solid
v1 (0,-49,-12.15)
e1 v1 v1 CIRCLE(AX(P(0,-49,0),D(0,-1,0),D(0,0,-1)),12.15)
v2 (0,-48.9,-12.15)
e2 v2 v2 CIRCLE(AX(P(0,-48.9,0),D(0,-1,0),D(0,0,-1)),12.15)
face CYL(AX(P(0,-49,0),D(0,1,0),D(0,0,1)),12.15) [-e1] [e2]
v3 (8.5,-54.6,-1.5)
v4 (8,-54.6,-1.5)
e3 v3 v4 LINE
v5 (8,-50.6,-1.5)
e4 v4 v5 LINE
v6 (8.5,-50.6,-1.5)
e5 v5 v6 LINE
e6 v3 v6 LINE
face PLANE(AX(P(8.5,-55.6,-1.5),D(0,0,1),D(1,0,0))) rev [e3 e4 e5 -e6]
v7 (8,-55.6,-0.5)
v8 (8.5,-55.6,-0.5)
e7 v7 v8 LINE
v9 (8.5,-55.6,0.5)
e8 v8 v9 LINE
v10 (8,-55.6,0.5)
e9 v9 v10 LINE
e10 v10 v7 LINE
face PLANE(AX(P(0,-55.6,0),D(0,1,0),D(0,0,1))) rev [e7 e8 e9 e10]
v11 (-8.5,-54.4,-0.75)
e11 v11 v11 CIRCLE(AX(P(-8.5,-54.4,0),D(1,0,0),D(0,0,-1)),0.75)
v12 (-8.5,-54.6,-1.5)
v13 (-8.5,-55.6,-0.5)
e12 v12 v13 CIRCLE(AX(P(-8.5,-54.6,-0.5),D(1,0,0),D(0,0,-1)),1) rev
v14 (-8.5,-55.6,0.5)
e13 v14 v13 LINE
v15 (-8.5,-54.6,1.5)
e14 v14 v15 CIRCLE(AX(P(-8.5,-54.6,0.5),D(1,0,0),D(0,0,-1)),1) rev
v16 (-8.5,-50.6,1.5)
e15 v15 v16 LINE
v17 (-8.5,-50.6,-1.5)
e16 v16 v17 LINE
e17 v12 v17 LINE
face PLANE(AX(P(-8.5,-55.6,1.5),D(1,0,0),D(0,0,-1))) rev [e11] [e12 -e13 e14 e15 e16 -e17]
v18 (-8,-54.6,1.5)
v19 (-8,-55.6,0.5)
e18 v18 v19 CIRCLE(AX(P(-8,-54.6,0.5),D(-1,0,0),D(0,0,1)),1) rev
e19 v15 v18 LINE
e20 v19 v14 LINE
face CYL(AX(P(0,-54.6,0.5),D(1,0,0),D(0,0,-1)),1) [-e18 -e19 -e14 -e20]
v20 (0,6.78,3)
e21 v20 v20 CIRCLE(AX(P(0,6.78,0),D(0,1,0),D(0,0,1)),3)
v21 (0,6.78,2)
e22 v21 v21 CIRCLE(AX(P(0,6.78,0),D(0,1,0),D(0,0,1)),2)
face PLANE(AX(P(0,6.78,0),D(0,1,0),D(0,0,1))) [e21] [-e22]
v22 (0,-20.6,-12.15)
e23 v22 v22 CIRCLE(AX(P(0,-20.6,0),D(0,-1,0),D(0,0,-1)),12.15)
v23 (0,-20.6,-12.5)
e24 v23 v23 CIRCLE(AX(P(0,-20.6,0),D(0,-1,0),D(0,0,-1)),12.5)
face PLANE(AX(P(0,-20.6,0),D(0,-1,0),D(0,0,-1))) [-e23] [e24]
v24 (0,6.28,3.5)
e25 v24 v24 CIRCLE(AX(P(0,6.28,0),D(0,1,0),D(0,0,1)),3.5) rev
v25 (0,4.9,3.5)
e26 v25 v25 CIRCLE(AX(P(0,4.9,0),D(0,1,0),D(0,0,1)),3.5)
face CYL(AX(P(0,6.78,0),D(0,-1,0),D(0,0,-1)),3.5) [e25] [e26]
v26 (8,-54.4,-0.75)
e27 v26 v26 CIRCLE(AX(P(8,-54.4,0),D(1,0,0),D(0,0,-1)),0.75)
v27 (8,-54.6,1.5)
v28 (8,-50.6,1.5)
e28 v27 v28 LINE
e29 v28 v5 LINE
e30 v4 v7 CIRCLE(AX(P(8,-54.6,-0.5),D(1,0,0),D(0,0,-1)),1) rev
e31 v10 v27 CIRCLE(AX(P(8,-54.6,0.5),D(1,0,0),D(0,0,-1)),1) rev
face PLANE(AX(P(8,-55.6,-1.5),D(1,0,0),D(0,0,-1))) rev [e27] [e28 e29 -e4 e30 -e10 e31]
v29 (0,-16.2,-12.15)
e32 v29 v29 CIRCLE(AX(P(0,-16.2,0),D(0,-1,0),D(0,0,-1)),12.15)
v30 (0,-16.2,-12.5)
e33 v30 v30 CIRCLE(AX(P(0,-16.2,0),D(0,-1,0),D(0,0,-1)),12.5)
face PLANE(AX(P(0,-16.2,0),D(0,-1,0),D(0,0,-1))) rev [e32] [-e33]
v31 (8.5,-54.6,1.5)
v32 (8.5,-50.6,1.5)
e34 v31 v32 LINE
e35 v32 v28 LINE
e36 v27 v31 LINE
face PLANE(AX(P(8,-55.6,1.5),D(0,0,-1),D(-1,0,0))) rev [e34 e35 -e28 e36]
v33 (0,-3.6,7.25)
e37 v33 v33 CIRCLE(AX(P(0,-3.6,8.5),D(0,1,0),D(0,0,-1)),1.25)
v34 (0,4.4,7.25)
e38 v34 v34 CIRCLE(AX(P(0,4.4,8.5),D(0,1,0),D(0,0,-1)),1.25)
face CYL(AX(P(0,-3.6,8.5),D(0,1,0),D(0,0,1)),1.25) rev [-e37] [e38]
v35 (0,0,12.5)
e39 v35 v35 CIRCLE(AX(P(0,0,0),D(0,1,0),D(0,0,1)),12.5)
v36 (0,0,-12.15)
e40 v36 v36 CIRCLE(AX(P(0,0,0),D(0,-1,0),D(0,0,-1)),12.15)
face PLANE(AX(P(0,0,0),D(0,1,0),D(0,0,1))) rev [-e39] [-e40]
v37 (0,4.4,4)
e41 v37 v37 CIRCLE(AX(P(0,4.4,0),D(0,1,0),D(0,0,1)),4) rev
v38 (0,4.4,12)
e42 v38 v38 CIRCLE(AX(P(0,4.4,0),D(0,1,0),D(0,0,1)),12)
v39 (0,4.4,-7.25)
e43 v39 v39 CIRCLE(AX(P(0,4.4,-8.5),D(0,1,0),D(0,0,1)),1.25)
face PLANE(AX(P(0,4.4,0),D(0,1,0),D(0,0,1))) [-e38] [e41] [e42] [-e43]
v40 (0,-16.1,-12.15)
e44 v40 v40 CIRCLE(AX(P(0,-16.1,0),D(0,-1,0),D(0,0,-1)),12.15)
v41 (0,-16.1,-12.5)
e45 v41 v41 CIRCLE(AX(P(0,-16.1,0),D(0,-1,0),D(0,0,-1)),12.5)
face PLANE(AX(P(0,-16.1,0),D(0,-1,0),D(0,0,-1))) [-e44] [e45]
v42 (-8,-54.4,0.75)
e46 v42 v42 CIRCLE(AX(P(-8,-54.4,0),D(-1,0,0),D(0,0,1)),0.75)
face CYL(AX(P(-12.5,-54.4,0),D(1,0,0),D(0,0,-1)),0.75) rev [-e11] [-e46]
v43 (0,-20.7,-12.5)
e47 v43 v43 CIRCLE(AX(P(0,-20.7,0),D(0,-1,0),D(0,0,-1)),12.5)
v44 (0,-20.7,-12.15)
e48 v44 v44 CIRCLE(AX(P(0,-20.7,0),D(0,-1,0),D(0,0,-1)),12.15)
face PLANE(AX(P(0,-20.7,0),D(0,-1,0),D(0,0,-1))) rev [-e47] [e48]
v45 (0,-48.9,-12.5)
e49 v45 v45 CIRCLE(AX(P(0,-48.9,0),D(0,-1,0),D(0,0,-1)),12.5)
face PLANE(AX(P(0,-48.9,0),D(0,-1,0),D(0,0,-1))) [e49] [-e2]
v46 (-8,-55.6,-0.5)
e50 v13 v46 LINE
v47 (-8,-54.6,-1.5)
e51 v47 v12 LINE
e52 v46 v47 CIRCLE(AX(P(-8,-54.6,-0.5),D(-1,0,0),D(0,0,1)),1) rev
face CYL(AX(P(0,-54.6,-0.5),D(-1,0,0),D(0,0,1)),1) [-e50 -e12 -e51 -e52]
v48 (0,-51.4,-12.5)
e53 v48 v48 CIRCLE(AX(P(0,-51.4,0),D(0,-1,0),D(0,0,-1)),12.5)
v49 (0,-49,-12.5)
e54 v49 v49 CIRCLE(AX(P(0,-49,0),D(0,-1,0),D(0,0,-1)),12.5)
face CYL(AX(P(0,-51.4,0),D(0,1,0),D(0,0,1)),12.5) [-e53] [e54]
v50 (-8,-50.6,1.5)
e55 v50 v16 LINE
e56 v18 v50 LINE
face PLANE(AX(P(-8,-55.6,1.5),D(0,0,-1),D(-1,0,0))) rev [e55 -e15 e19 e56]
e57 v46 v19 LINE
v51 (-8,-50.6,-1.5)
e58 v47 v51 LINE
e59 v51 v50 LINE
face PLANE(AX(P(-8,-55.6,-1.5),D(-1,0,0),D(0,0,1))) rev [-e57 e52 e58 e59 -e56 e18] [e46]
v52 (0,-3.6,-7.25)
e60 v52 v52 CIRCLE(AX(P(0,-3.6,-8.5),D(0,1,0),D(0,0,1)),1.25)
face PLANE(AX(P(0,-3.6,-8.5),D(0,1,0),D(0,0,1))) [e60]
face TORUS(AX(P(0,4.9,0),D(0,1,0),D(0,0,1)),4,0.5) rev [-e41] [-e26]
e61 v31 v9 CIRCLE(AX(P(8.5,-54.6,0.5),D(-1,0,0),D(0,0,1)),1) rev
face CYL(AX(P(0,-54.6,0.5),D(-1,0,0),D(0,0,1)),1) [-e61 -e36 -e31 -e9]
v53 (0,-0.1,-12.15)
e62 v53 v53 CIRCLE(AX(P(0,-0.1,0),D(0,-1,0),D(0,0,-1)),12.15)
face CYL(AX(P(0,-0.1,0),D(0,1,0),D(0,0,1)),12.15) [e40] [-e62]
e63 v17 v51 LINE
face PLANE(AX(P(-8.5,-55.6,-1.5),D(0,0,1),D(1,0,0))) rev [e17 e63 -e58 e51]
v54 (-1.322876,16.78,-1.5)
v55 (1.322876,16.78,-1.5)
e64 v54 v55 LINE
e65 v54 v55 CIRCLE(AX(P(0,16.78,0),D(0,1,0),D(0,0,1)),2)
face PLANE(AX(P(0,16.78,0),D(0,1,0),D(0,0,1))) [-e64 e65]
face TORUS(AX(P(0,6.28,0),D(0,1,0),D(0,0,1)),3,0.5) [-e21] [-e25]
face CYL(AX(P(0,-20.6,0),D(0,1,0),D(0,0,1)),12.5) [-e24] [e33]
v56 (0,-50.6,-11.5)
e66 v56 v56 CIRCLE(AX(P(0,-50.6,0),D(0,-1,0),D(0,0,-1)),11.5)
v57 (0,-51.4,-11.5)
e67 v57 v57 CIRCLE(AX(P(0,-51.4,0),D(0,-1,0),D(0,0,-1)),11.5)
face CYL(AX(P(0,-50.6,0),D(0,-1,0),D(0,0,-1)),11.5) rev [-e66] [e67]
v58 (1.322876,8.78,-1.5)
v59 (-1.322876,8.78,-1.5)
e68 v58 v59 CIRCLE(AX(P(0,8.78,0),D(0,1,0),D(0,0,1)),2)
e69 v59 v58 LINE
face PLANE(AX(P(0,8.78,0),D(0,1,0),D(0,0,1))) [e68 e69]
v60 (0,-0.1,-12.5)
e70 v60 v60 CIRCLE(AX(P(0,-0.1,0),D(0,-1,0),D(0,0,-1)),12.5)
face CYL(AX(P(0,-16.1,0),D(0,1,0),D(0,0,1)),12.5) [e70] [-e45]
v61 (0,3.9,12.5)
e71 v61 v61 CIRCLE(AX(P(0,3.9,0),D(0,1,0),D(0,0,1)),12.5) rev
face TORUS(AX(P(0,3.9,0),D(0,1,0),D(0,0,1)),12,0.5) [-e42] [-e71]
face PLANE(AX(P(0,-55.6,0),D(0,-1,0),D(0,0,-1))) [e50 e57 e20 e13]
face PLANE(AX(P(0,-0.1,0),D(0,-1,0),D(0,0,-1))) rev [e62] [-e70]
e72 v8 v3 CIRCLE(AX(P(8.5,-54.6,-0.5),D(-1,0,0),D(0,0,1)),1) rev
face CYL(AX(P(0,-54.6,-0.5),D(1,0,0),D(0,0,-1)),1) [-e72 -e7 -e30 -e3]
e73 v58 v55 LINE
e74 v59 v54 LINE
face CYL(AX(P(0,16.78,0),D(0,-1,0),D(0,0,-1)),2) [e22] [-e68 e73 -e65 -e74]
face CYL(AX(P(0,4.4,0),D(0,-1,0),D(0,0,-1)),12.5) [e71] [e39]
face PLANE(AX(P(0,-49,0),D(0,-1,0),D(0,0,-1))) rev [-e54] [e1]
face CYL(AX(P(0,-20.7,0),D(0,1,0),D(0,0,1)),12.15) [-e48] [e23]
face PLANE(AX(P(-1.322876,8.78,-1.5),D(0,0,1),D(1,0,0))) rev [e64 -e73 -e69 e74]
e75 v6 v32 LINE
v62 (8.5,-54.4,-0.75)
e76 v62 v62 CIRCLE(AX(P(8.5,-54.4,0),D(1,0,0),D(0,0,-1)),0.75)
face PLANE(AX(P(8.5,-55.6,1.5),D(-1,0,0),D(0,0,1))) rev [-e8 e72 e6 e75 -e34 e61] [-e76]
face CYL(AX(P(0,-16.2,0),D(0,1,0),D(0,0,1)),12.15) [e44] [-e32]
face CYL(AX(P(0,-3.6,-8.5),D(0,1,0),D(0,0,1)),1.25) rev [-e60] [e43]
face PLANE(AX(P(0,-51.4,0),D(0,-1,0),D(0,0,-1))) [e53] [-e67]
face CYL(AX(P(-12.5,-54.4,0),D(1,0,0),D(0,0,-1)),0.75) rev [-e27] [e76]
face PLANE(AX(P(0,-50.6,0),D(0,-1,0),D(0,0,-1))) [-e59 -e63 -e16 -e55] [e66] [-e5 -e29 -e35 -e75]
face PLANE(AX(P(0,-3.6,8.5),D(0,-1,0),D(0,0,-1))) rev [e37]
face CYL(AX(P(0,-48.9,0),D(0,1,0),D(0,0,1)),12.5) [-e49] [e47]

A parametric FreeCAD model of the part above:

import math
import FreeCAD as App
import Part
import Sketcher
Q = App.Units.Quantity


def edges_at(feature, points):
    """Names of the edges that pass closest to the given points."""
    edges = feature.Shape.Edges
    near = lambda p: min(range(len(edges)), key=lambda i: edges[i].distToShape(Part.Vertex(*p))[0])
    return sorted({f"Edge{near(p) + 1}" for p in points})


def add_polygon(sketch, points):
    """Adds a closed chain of lines whose ends are joined by coincident constraints."""
    first, n = sketch.GeometryCount, len(points)
    for a, b in zip(points, points[1:] + points[:1]):
        sketch.addGeometry(Part.LineSegment(App.Vector(*a, 0), App.Vector(*b, 0)), False)
    for i in range(n):
        sketch.addConstraint(Sketcher.Constraint("Coincident", first + i, 2, first + (i + 1) % n, 1))

doc = App.newDocument("Part")
body = doc.addObject("PartDesign::Body", "Body")

sketch1 = body.newObject("Sketcher::SketchObject", "Sketch")
sketch1.AttachmentSupport = (doc.getObject("XZ_Plane"), [""])
sketch1.MapMode = "FlatFace"
sketch1.addGeometry(Part.Circle(App.Vector(0, 0, 0), App.Vector(0, 0, 1), 12), False)
sketch1.addConstraint([
    Sketcher.Constraint("Coincident", 0, 3, -1, 1),
    Sketcher.Constraint("Diameter", 0, Q("25 mm")),
])
pad1 = body.newObject("PartDesign::Pad", "Pad")
pad1.Profile = sketch1
pad1.Length = 4.4
pad1.Reversed = True

sketch2 = body.newObject("Sketcher::SketchObject", "Sketch001")
sketch2.AttachmentSupport = (doc.getObject("XZ_Plane"), [""])
sketch2.MapMode = "FlatFace"
sketch2.addGeometry(Part.Circle(App.Vector(0, 0, 0), App.Vector(0, 0, 1), 12), False)
sketch2.addConstraint([
    Sketcher.Constraint("Coincident", 0, 3, -1, 1),
    Sketcher.Constraint("Diameter", 0, Q("24.3 mm")),
])
pad2 = body.newObject("PartDesign::Pad", "Pad001")
pad2.Profile = sketch2
pad2.Length = 0.1

sketch3 = body.newObject("Sketcher::SketchObject", "Sketch002")
sketch3.AttachmentSupport = (doc.getObject("XZ_Plane"), [""])
sketch3.MapMode = "FlatFace"
sketch3.AttachmentOffset = App.Placement(App.Vector(0, 0, 16.1), App.Rotation())
sketch3.addGeometry(Part.Circle(App.Vector(0, 0, 0), App.Vector(0, 0, 1), 12), False)
sketch3.addConstraint([
    Sketcher.Constraint("Coincident", 0, 3, -1, 1),
    Sketcher.Constraint("Diameter", 0, Q("25 mm")),
])
pad3 = body.newObject("PartDesign::Pad", "Pad002")
pad3.Profile = sketch3
pad3.Length = 16
pad3.Reversed = True

sketch4 = body.newObject("Sketcher::SketchObject", "Sketch003")
sketch4.AttachmentSupport = (doc.getObject("XZ_Plane"), [""])
sketch4.MapMode = "FlatFace"
sketch4.AttachmentOffset = App.Placement(App.Vector(0, 0, 16.1), App.Rotation())
sketch4.addGeometry(Part.Circle(App.Vector(0, 0, 0), App.Vector(0, 0, 1), 12), False)
sketch4.addConstraint([
    Sketcher.Constraint("Coincident", 0, 3, -1, 1),
    Sketcher.Constraint("Diameter", 0, Q("24.3 mm")),
])
pad4 = body.newObject("PartDesign::Pad", "Pad003")
pad4.Profile = sketch4
pad4.Length = 0.1

sketch5 = body.newObject("Sketcher::SketchObject", "Sketch004")
sketch5.AttachmentSupport = (doc.getObject("XZ_Plane"), [""])
sketch5.MapMode = "FlatFace"
sketch5.AttachmentOffset = App.Placement(App.Vector(0, 0, 20.6), App.Rotation())
sketch5.addGeometry(Part.Circle(App.Vector(0, 0, 0), App.Vector(0, 0, 1), 12), False)
sketch5.addConstraint([
    Sketcher.Constraint("Coincident", 0, 3, -1, 1),
    Sketcher.Constraint("Diameter", 0, Q("25 mm")),
])
pad5 = body.newObject("PartDesign::Pad", "Pad004")
pad5.Profile = sketch5
pad5.Length = 4.4
pad5.Reversed = True

sketch6 = body.newObject("Sketcher::SketchObject", "Sketch005")
sketch6.AttachmentSupport = (doc.getObject("XZ_Plane"), [""])
sketch6.MapMode = "FlatFace"
sketch6.AttachmentOffset = App.Placement(App.Vector(0, 0, 20.6), App.Rotation())
sketch6.addGeometry(Part.Circle(App.Vector(0, 0, 0), App.Vector(0, 0, 1), 12), False)
sketch6.addConstraint([
    Sketcher.Constraint("Coincident", 0, 3, -1, 1),
    Sketcher.Constraint("Diameter", 0, Q("24.3 mm")),
])
pad6 = body.newObject("PartDesign::Pad", "Pad005")
pad6.Profile = sketch6
pad6.Length = 0.1

sketch7 = body.newObject("Sketcher::SketchObject", "Sketch006")
sketch7.AttachmentSupport = (doc.getObject("XZ_Plane"), [""])
sketch7.MapMode = "FlatFace"
sketch7.AttachmentOffset = App.Placement(App.Vector(0, 0, 48.9), App.Rotation())
sketch7.addGeometry(Part.Circle(App.Vector(0, 0, 0), App.Vector(0, 0, 1), 12), False)
sketch7.addConstraint([
    Sketcher.Constraint("Coincident", 0, 3, -1, 1),
    Sketcher.Constraint("Diameter", 0, Q("25 mm")),
])
pad7 = body.newObject("PartDesign::Pad", "Pad006")
pad7.Profile = sketch7
pad7.Length = 28.2
pad7.Reversed = True

sketch8 = body.newObject("Sketcher::SketchObject", "Sketch007")
sketch8.AttachmentSupport = (doc.getObject("XZ_Plane"), [""])
sketch8.MapMode = "FlatFace"
sketch8.AttachmentOffset = App.Placement(App.Vector(0, 0, 48.9), App.Rotation())
sketch8.addGeometry(Part.Circle(App.Vector(0, 0, 0), App.Vector(0, 0, 1), 12), False)
sketch8.addConstraint([
    Sketcher.Constraint("Coincident", 0, 3, -1, 1),
    Sketcher.Constraint("Diameter", 0, Q("24.3 mm")),
])
pad8 = body.newObject("PartDesign::Pad", "Pad007")
pad8.Profile = sketch8
pad8.Length = 0.1

sketch9 = body.newObject("Sketcher::SketchObject", "Sketch008")
sketch9.AttachmentSupport = (doc.getObject("XZ_Plane"), [""])
sketch9.MapMode = "FlatFace"
sketch9.AttachmentOffset = App.Placement(App.Vector(0, 0, 51.4), App.Rotation())
sketch9.addGeometry(Part.Circle(App.Vector(0, 0, 0), App.Vector(0, 0, 1), 12), False)
sketch9.addConstraint([
    Sketcher.Constraint("Coincident", 0, 3, -1, 1),
    Sketcher.Constraint("Diameter", 0, Q("25 mm")),
])
pad9 = body.newObject("PartDesign::Pad", "Pad008")
pad9.Profile = sketch9
pad9.Length = 2.4
pad9.Reversed = True

sketch10 = body.newObject("Sketcher::SketchObject", "Sketch009")
sketch10.AttachmentSupport = (doc.getObject("XZ_Plane"), [""])
sketch10.MapMode = "FlatFace"
sketch10.AttachmentOffset = App.Placement(App.Vector(0, 0, 51.4), App.Rotation())
sketch10.addGeometry(Part.Circle(App.Vector(0, 0, 0), App.Vector(0, 0, 1), 12), False)
sketch10.addConstraint([
    Sketcher.Constraint("Coincident", 0, 3, -1, 1),
    Sketcher.Constraint("Diameter", 0, Q("23 mm")),
])
pocket1 = body.newObject("PartDesign::Pocket", "Pocket")
pocket1.Profile = sketch10
pocket1.Length = 0.8

sketch11 = body.newObject("Sketcher::SketchObject", "Sketch010")
sketch11.AttachmentSupport = (doc.getObject("XZ_Plane"), [""])
sketch11.MapMode = "FlatFace"
sketch11.AttachmentOffset = App.Placement(App.Vector(0, 0, 50.6), App.Rotation())
add_polygon(sketch11, [(-8.5, 1.5), (-8.5, -1.5), (-8, -1.5), (-8, 1.5)])
add_polygon(sketch11, [(8, 1.5), (8, -1.5), (8.5, -1.5), (8.5, 1.5)])
sketch11.addConstraint([
    Sketcher.Constraint("Vertical", 0),
    Sketcher.Constraint("Horizontal", 1),
    Sketcher.Constraint("Vertical", 2),
    Sketcher.Constraint("Horizontal", 3),
    Sketcher.Constraint("Vertical", 4),
    Sketcher.Constraint("Horizontal", 5),
    Sketcher.Constraint("Vertical", 6),
    Sketcher.Constraint("Horizontal", 7),
    Sketcher.Constraint("Symmetric", 2, 2, 4, 2, -1, 1),
    Sketcher.Constraint("Symmetric", 0, 2, 6, 2, -1, 1),
    Sketcher.Constraint("Horizontal", 1, 2, 4, 2),
    Sketcher.Constraint("DistanceY", 0, 2, 0, 1, Q("3 mm")),
    Sketcher.Constraint("DistanceX", 1, 1, 1, 2, Q("0.5 mm")),
    Sketcher.Constraint("DistanceX", 1, 2, -1, 1, Q("8 mm")),
])
pad10 = body.newObject("PartDesign::Pad", "Pad009")
pad10.Profile = sketch11
pad10.Length = 5

sketch12 = body.newObject("Sketcher::SketchObject", "Sketch011")
sketch12.AttachmentSupport = (doc.getObject("YZ_Plane"), [""])
sketch12.MapMode = "FlatFace"
sketch12.AttachmentOffset = App.Placement(App.Vector(0, 0, 8.5), App.Rotation())
sketch12.addGeometry(Part.Circle(App.Vector(-54.4, 0, 0), App.Vector(0, 0, 1), 0.8), False)
sketch12.addConstraint([
    Sketcher.Constraint("PointOnObject", 0, 3, -1),
    Sketcher.Constraint("Diameter", 0, Q("1.5 mm")),
    Sketcher.Constraint("DistanceX", 0, 3, -1, 1, Q("54.4 mm")),
])
pocket2 = body.newObject("PartDesign::Pocket", "Pocket001")
pocket2.Profile = sketch12
pocket2.Type = "ThroughAll"
doc.recompute()

fillet = body.newObject("PartDesign::Fillet", "Fillet")
fillet.Base = (pocket2, edges_at(pocket2, [
    (-8.25, -55.6, 1.5),
    (-8.25, -55.6, -1.5),
    (8.25, -55.6, -1.5),
    (8.25, -55.6, 1.5),
]))
fillet.Radius = 1

sketch13 = body.newObject("Sketcher::SketchObject", "Sketch012")
sketch13.AttachmentSupport = (doc.getObject("XZ_Plane"), [""])
sketch13.MapMode = "FlatFace"
sketch13.AttachmentOffset = App.Placement(App.Vector(0, 0, -4.4), App.Rotation())
sketch13.addGeometry([
    Part.Circle(App.Vector(0, -8.5, 0), App.Vector(0, 0, 1), 1.2),
    Part.Circle(App.Vector(0, 8.5, 0), App.Vector(0, 0, 1), 1.2),
], False)
sketch13.addConstraint([
    Sketcher.Constraint("Equal", 0, 1),
    Sketcher.Constraint("Symmetric", 0, 3, 1, 3, -1, 1),
    Sketcher.Constraint("PointOnObject", 0, 3, -2),
    Sketcher.Constraint("Diameter", 0, Q("2.5 mm")),
    Sketcher.Constraint("DistanceY", 0, 3, 1, 3, Q("17 mm")),
])
pocket3 = body.newObject("PartDesign::Pocket", "Pocket002")
pocket3.Profile = sketch13
pocket3.Length = 8
pocket3.Reversed = True

sketch14 = body.newObject("Sketcher::SketchObject", "Sketch013")
sketch14.AttachmentSupport = (doc.getObject("XZ_Plane"), [""])
sketch14.MapMode = "FlatFace"
sketch14.AttachmentOffset = App.Placement(App.Vector(0, 0, -4.4), App.Rotation())
sketch14.addGeometry(Part.Circle(App.Vector(0, 0, 0), App.Vector(0, 0, 1), 3.5), False)
sketch14.addConstraint([
    Sketcher.Constraint("Coincident", 0, 3, -1, 1),
    Sketcher.Constraint("Diameter", 0, Q("7 mm")),
])
pad11 = body.newObject("PartDesign::Pad", "Pad010")
pad11.Profile = sketch14
pad11.Length = 2.38
pad11.Reversed = True

sketch15 = body.newObject("Sketcher::SketchObject", "Sketch014")
sketch15.AttachmentSupport = (doc.getObject("XZ_Plane"), [""])
sketch15.MapMode = "FlatFace"
sketch15.AttachmentOffset = App.Placement(App.Vector(0, 0, -6.78), App.Rotation())
sketch15.addGeometry(Part.Circle(App.Vector(0, 0, 0), App.Vector(0, 0, 1), 2), False)
sketch15.addConstraint([
    Sketcher.Constraint("Coincident", 0, 3, -1, 1),
    Sketcher.Constraint("Diameter", 0, Q("4 mm")),
])
pad12 = body.newObject("PartDesign::Pad", "Pad011")
pad12.Profile = sketch15
pad12.Length = 10
pad12.Reversed = True

sketch16 = body.newObject("Sketcher::SketchObject", "Sketch015")
sketch16.AttachmentSupport = (doc.getObject("XZ_Plane"), [""])
sketch16.MapMode = "FlatFace"
sketch16.AttachmentOffset = App.Placement(App.Vector(0, 0, -8.78), App.Rotation())
sketch16.addGeometry([
    Part.LineSegment(App.Vector(-1.3, -1.5, 0), App.Vector(1.3, -1.5, 0)),
    Part.ArcOfCircle(Part.Circle(App.Vector(0, 0, 0), App.Vector(0, 0, 1), 2), math.radians(-131), math.radians(-49)),
], False)
sketch16.addConstraint([
    Sketcher.Constraint("Coincident", 0, 1, 1, 1),
    Sketcher.Constraint("Coincident", 1, 2, 0, 2),
    Sketcher.Constraint("Horizontal", 0),
    Sketcher.Constraint("Coincident", 1, 3, -1, 1),
    Sketcher.Constraint("Radius", 1, Q("2 mm")),
    Sketcher.Constraint("DistanceY", 0, 1, -1, 1, Q("1.5 mm")),
])
pocket4 = body.newObject("PartDesign::Pocket", "Pocket003")
pocket4.Profile = sketch16
pocket4.Length = 8
doc.recompute()

fillet2 = body.newObject("PartDesign::Fillet", "Fillet001")
fillet2.Base = (pocket4, edges_at(pocket4, [(0, 4.4, -3.5), (0, 6.78, -3.5), (0, 4.4, -12.5)]))
fillet2.Radius = 0.5

doc.recompute()
